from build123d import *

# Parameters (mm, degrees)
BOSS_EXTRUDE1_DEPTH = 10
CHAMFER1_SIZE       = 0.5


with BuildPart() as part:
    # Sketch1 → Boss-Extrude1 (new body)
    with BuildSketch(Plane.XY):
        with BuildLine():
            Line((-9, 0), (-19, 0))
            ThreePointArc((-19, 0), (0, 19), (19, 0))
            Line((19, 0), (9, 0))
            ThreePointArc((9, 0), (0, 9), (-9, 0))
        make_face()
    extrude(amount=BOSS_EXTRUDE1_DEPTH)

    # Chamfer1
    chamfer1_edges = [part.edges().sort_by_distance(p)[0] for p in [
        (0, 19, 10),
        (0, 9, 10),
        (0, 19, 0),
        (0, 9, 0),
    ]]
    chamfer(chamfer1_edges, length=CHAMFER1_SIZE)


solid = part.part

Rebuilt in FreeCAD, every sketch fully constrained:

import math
import FreeCAD as App
import Part
import Sketcher

V = App.Vector


def edges_at(feature, points):
    """Names of the edges that pass closest to the given points."""
    edges = feature.Shape.Edges
    near = lambda p: min(range(len(edges)), key=lambda i: edges[i].distToShape(Part.Vertex(*p))[0])
    return sorted({f"Edge{near(p) + 1}" for p in points})

doc = App.newDocument("Part")
body = doc.addObject("PartDesign::Body", "Body")

# Sketch on XY plane
sketch1 = body.newObject("Sketcher::SketchObject", "Sketch")
sketch1.AttachmentSupport = (doc.getObject("XY_Plane"), [""])
sketch1.MapMode = "FlatFace"
sketch1.addGeometry([
    Part.LineSegment(V(-19, 0, 0), V(-9, 0, 0)),
    Part.ArcOfCircle(Part.Circle(V(0, 0, 0), V(0, 0, 1), 9), math.radians(0), math.radians(180)),
    Part.LineSegment(V(9, 0, 0), V(19, 0, 0)),
    Part.ArcOfCircle(Part.Circle(V(0, 0, 0), V(0, 0, 1), 19), math.radians(0), math.radians(180)),
], False)
sketch1.addConstraint([
    Sketcher.Constraint("Coincident", 0, 2, 1, 2),
    Sketcher.Constraint("Coincident", 1, 1, 2, 1),
    Sketcher.Constraint("Coincident", 2, 2, 3, 1),
    Sketcher.Constraint("Coincident", 3, 2, 0, 1),
    Sketcher.Constraint("Horizontal", 0),
    Sketcher.Constraint("Horizontal", 2),
    Sketcher.Constraint("Coincident", 1, 3, -1, 1),
    Sketcher.Constraint("Coincident", 3, 3, -1, 1),
    Sketcher.Constraint("PointOnObject", 0, 2, -1),
    Sketcher.Constraint("PointOnObject", 1, 1, -1),
    Sketcher.Constraint("Radius", 1, 9.0),
    Sketcher.Constraint("Radius", 3, 19.0),
])
pad1 = body.newObject("PartDesign::Pad", "Pad")
pad1.Profile = sketch1
pad1.Length = 10
doc.recompute()

chamfer = body.newObject("PartDesign::Chamfer", "Chamfer")
chamfer.Base = (pad1, edges_at(pad1, [
    (0, 19, 10),
    (0, 9, 10),
    (0, 19, 0),
    (0, 9, 0),
]))
chamfer.Size = 0.5

doc.recompute()
